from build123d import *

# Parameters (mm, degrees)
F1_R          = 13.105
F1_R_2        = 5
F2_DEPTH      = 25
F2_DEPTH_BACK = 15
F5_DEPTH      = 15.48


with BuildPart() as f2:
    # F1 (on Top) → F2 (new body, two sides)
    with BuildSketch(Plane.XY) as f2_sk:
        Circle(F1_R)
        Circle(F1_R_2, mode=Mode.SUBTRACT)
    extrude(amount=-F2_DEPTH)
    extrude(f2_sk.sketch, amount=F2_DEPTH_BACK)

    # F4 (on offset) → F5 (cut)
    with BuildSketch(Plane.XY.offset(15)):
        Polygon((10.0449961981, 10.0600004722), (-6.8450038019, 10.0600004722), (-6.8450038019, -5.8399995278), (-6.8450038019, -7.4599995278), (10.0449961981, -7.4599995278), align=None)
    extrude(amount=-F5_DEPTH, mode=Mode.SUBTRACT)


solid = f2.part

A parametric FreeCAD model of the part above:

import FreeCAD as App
import Part
import Sketcher
from FreeCAD import Vector


def add_polygon(sketch, points):
    """Adds a closed chain of lines whose ends are joined by coincident constraints."""
    first, n = sketch.GeometryCount, len(points)
    for a, b in zip(points, points[1:] + points[:1]):
        sketch.addGeometry(Part.LineSegment(App.Vector(*a, 0), App.Vector(*b, 0)), False)
    for i in range(n):
        sketch.addConstraint(Sketcher.Constraint("Coincident", first + i, 2, first + (i + 1) % n, 1))

doc = App.newDocument("Part")
body = doc.addObject("PartDesign::Body", "Body")

# Sketch on XY plane
sketch1 = body.newObject("Sketcher::SketchObject", "Sketch")
sketch1.AttachmentSupport = (doc.getObject("XY_Plane"), [""])
sketch1.MapMode = "FlatFace"
sketch1.addGeometry(Part.Circle(Vector(0, 0, 0), Vector(0, 0, 1), 13.105), False)
sketch1.addGeometry(Part.Circle(Vector(0, 0, 0), Vector(0, 0, 1), 5), False)
sketch1.addConstraint(Sketcher.Constraint("Coincident", 0, 3, -1, 1))
sketch1.addConstraint(Sketcher.Constraint("Coincident", 1, 3, -1, 1))
sketch1.addConstraint(Sketcher.Constraint("Diameter", 1, 10.0))
sketch1.addConstraint(Sketcher.Constraint("Diameter", 0, 26.21))
pad1 = body.newObject("PartDesign::Pad", "Pad")
pad1.Profile = sketch1
pad1.Type = "TwoLengths"
pad1.Length = 25
pad1.Length2 = 15
pad1.Reversed = True

# Sketch on XY plane
sketch2 = body.newObject("Sketcher::SketchObject", "Sketch001")
sketch2.AttachmentSupport = (doc.getObject("XY_Plane"), [""])
sketch2.MapMode = "FlatFace"
sketch2.AttachmentOffset = App.Placement(Vector(0, 0, 15), App.Rotation())
add_polygon(sketch2, [(10.044996, 10.06), (-6.845004, 10.06), (-6.845004, -7.46), (10.044996, -7.46)])  # lines 0-3
sketch2.addConstraint(Sketcher.Constraint("Horizontal", 0))
sketch2.addConstraint(Sketcher.Constraint("Vertical", 1))
sketch2.addConstraint(Sketcher.Constraint("Horizontal", 2))
sketch2.addConstraint(Sketcher.Constraint("Vertical", 3))
sketch2.addConstraint(Sketcher.Constraint("DistanceX", 0, 2, 0, 1, 16.89))
sketch2.addConstraint(Sketcher.Constraint("DistanceY", 1, 2, 1, 1, 17.52))
sketch2.addConstraint(Sketcher.Constraint("DistanceY", -1, 1, 0, 2, 10.06))
sketch2.addConstraint(Sketcher.Constraint("DistanceX", 0, 2, -1, 1, 6.845004))
pocket1 = body.newObject("PartDesign::Pocket", "Pocket")
pocket1.Profile = sketch2
pocket1.Length = 15.48

doc.recompute()
